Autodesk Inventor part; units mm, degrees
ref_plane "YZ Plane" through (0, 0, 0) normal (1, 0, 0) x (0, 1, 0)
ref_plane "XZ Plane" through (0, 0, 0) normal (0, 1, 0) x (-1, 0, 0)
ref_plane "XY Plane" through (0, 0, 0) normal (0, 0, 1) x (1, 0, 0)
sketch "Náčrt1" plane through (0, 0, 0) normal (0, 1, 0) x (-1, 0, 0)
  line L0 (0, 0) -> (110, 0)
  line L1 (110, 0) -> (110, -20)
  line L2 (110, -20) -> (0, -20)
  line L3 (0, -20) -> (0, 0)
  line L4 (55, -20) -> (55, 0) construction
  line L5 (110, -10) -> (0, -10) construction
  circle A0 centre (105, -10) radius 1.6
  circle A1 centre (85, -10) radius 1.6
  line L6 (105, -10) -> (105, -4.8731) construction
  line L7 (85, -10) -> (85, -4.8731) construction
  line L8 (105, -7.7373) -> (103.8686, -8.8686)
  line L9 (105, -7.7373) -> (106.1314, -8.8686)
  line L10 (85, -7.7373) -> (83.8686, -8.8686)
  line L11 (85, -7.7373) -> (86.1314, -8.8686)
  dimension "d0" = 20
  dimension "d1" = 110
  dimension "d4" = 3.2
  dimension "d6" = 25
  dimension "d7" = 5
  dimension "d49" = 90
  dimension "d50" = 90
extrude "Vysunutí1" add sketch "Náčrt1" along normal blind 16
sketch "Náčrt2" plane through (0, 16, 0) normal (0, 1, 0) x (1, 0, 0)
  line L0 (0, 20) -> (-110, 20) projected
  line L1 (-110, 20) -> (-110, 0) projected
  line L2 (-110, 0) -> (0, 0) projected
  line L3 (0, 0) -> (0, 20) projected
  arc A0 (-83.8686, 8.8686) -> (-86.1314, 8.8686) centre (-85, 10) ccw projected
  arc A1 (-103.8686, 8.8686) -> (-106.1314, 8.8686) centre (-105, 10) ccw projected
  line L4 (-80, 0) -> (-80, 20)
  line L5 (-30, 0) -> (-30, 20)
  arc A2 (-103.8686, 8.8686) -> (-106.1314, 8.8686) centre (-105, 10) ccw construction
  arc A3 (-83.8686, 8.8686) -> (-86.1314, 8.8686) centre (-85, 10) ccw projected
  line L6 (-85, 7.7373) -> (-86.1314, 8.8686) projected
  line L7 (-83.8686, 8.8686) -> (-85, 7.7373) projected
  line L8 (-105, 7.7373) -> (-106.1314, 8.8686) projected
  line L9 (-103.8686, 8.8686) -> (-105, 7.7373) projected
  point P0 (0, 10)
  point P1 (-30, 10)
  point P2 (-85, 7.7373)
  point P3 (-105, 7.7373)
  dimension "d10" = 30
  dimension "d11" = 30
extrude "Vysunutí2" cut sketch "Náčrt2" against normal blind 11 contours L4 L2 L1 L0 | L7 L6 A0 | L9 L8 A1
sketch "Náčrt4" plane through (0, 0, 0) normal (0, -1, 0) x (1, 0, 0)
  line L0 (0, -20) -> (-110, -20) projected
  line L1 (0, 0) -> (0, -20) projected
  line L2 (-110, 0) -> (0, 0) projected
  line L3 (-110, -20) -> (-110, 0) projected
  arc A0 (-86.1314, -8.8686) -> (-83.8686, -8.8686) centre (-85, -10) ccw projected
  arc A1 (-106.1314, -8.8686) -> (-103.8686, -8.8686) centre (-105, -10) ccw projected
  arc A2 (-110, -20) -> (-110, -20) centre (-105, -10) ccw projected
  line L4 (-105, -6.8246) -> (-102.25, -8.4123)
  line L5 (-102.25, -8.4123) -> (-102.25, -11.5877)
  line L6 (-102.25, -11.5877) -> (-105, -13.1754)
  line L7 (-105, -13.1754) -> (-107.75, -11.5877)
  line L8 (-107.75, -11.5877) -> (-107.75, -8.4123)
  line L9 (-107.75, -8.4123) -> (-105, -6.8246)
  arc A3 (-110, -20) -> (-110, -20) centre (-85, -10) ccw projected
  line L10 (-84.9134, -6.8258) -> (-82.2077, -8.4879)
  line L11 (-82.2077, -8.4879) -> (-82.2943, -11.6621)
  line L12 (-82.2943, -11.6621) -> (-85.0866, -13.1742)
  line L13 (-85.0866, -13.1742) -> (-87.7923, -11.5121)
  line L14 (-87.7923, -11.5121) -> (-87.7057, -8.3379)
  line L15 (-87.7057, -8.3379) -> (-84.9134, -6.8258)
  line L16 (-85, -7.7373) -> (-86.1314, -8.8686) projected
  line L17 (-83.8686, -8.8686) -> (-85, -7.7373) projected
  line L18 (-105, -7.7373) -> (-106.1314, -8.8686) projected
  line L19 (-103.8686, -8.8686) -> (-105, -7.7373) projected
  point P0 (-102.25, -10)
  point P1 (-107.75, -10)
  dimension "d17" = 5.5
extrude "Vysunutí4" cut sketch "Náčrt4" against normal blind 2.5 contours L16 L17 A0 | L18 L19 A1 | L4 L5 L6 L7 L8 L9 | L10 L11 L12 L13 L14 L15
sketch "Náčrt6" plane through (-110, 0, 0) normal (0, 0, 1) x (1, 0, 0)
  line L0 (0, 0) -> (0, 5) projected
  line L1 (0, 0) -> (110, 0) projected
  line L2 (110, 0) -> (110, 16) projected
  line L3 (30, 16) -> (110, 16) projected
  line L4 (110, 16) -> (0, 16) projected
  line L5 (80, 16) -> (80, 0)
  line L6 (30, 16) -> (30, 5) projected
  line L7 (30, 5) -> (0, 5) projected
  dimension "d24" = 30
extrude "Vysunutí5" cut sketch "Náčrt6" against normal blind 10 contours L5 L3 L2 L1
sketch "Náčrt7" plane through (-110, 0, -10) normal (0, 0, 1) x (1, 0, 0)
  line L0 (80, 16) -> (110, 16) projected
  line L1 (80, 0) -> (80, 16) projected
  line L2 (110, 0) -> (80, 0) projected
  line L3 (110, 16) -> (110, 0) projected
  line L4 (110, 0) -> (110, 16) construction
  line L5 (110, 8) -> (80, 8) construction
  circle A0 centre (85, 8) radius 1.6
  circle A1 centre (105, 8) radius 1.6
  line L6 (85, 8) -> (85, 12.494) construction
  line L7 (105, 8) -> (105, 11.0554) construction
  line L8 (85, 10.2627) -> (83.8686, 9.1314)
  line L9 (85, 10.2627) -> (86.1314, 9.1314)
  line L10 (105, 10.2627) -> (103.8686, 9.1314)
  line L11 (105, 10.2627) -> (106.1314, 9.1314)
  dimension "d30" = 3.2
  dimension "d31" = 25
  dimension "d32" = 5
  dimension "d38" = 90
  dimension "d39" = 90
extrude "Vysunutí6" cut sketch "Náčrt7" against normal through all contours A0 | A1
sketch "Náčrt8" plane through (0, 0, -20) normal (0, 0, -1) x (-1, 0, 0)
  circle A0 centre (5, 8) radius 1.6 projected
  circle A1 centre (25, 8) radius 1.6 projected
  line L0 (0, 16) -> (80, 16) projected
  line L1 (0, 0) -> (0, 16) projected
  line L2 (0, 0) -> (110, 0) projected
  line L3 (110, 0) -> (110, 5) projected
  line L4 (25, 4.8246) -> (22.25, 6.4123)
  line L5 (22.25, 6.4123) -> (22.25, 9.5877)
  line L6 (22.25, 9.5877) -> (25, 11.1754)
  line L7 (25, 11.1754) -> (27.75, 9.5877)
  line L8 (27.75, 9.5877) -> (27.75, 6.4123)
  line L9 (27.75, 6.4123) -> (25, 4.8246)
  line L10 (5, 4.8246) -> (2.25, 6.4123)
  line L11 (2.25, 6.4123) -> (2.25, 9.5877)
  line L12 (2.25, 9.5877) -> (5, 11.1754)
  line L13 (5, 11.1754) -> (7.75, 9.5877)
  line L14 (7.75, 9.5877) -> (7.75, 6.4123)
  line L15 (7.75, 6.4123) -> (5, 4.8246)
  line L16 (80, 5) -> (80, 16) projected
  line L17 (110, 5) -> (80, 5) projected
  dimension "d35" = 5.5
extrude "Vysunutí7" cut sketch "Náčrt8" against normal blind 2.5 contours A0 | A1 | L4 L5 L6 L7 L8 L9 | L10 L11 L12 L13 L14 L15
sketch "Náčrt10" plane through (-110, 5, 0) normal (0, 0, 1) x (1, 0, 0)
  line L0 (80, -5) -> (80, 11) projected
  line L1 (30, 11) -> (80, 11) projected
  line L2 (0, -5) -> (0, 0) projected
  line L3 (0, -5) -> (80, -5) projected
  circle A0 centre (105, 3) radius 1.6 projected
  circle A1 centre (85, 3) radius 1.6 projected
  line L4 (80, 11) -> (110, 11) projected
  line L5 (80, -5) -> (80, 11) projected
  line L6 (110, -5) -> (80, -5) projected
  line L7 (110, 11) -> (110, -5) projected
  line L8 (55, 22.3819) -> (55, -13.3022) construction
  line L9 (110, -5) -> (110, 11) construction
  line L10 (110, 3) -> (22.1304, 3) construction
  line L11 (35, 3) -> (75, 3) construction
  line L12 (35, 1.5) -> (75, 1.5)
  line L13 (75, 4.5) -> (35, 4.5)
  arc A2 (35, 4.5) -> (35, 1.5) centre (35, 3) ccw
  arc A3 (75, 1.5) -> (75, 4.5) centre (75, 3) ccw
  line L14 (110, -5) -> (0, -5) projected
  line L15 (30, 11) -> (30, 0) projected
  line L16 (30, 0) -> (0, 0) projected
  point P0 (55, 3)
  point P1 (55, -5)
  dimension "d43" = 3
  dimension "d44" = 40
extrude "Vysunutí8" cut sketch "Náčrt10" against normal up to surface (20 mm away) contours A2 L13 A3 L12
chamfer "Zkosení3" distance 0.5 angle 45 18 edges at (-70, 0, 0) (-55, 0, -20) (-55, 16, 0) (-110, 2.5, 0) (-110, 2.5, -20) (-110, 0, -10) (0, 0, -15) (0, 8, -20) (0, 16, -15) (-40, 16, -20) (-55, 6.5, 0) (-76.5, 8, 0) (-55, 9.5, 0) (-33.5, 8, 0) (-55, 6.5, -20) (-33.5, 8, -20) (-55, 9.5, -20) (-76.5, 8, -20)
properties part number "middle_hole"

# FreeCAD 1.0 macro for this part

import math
import FreeCAD as App
import Part
import Sketcher

V = App.Vector
Q = App.Units.Quantity


def edges_at(feature, points):
    """Names of the edges that pass closest to the given points."""
    edges = feature.Shape.Edges
    near = lambda p: min(range(len(edges)), key=lambda i: edges[i].distToShape(Part.Vertex(*p))[0])
    return sorted({f"Edge{near(p) + 1}" for p in points})

doc = App.newDocument("Part")
body = doc.addObject("PartDesign::Body", "Body")

sketch1 = body.newObject("Sketcher::SketchObject", "Sketch")
sketch1.AttachmentSupport = (doc.getObject("XZ_Plane"), [""])
sketch1.MapMode = "FlatFace"
sketch1.addGeometry([
    Part.LineSegment(V(-110, 0, 0), V(0, 0, 0)),
    Part.LineSegment(V(0, 0, 0), V(0, -20, 0)),
    Part.LineSegment(V(0, -20, 0), V(-110, -20, 0)),
    Part.LineSegment(V(-110, -20, 0), V(-110, 0, 0)),
    Part.ArcOfCircle(Part.Circle(V(-85, -10, 0), V(0, 0, 1), 1.6), math.radians(135), math.radians(405)),
    Part.LineSegment(V(-83.9, -8.9, 0), V(-85, -7.7, 0)),
    Part.LineSegment(V(-85, -7.7, 0), V(-86.1, -8.9, 0)),
    Part.ArcOfCircle(Part.Circle(V(-105, -10, 0), V(0, 0, 1), 1.6), math.radians(135), math.radians(405)),
    Part.LineSegment(V(-103.9, -8.9, 0), V(-105, -7.7, 0)),
    Part.LineSegment(V(-105, -7.7, 0), V(-106.1, -8.9, 0)),
], False)
sketch1.addConstraint([
    Sketcher.Constraint("Coincident", 0, 2, 1, 1),
    Sketcher.Constraint("Coincident", 1, 2, 2, 1),
    Sketcher.Constraint("Coincident", 2, 2, 3, 1),
    Sketcher.Constraint("Coincident", 3, 2, 0, 1),
    Sketcher.Constraint("Tangent", 4, 2, 5, 1),
    Sketcher.Constraint("Coincident", 5, 2, 6, 1),
    Sketcher.Constraint("Tangent", 6, 2, 4, 1),
    Sketcher.Constraint("Tangent", 7, 2, 8, 1),
    Sketcher.Constraint("Coincident", 8, 2, 9, 1),
    Sketcher.Constraint("Tangent", 9, 2, 7, 1),
    Sketcher.Constraint("Horizontal", 0),
    Sketcher.Constraint("Vertical", 1),
    Sketcher.Constraint("Horizontal", 2),
    Sketcher.Constraint("Vertical", 3),
    Sketcher.Constraint("Coincident", 0, 2, -1, 1),
    Sketcher.Constraint("Equal", 4, 7),
    Sketcher.Constraint("Perpendicular", 5, 6),
    Sketcher.Constraint("Perpendicular", 6, 8),
    Sketcher.Constraint("Perpendicular", 8, 9),
    Sketcher.Constraint("Horizontal", 4, 3, 7, 3),
    Sketcher.Constraint("Horizontal", 4, 2, 6, 2),
    Sketcher.Constraint("Radius", 4, 1.6),
    Sketcher.Constraint("DistanceX", 0, 1, 0, 2, 110.0),
    Sketcher.Constraint("DistanceY", 1, 2, 1, 1, 20.0),
    Sketcher.Constraint("DistanceX", 7, 3, 4, 3, 20.0),
    Sketcher.Constraint("DistanceX", 2, 2, 7, 3, 5.0),
    Sketcher.Constraint("DistanceY", 4, 3, -1, 1, 10.0),
])
pad1 = body.newObject("PartDesign::Pad", "Pad")
pad1.Profile = sketch1
pad1.Length = 16
pad1.Reversed = True

sketch2 = body.newObject("Sketcher::SketchObject", "Sketch001")
sketch2.AttachmentSupport = (doc.getObject("XZ_Plane"), [""])
sketch2.MapMode = "FlatFace"
sketch2.AttachmentOffset = App.Placement(V(0, 0, -16), App.Rotation())
sketch2.addGeometry([
    Part.LineSegment(V(-80, 0, 0), V(-80, -20, 0)),
    Part.LineSegment(V(-80, -20, 0), V(-110, -20, 0)),
    Part.LineSegment(V(-110, -20, 0), V(-110, 0, 0)),
    Part.LineSegment(V(-110, 0, 0), V(-80, 0, 0)),
], False)
sketch2.addConstraint([
    Sketcher.Constraint("Coincident", 0, 2, 1, 1),
    Sketcher.Constraint("Coincident", 1, 2, 2, 1),
    Sketcher.Constraint("Coincident", 2, 2, 3, 1),
    Sketcher.Constraint("Coincident", 3, 2, 0, 1),
    Sketcher.Constraint("Vertical", 0),
    Sketcher.Constraint("Horizontal", 1),
    Sketcher.Constraint("Vertical", 2),
    Sketcher.Constraint("Horizontal", 3),
    Sketcher.Constraint("PointOnObject", 2, 2, -1),
    Sketcher.Constraint("DistanceX", 1, 2, 1, 1, 30.0),
    Sketcher.Constraint("DistanceY", 0, 2, 0, 1, 20.0),
    Sketcher.Constraint("DistanceX", 0, 2, -1, 1, 80.0),
])
pocket1 = body.newObject("PartDesign::Pocket", "Pocket")
pocket1.Profile = sketch2
pocket1.Length = 11
pocket1.Reversed = True

sketch3 = body.newObject("Sketcher::SketchObject", "Sketch002")
sketch3.AttachmentSupport = (doc.getObject("XZ_Plane"), [""])
sketch3.MapMode = "FlatFace"
sketch3.addGeometry([
    Part.LineSegment(V(-82.2077, -8.4879, 0), V(-84.9134, -6.8258, 0)),
    Part.LineSegment(V(-84.9134, -6.8258, 0), V(-87.7057, -8.3379, 0)),
    Part.LineSegment(V(-87.7057, -8.3379, 0), V(-87.7923, -11.5121, 0)),
    Part.LineSegment(V(-87.7923, -11.5121, 0), V(-85.0866, -13.1742, 0)),
    Part.LineSegment(V(-85.0866, -13.1742, 0), V(-82.2943, -11.6621, 0)),
    Part.LineSegment(V(-82.2943, -11.6621, 0), V(-82.2077, -8.4879, 0)),
    Part.LineSegment(V(-102.25, -8.4123, 0), V(-105, -6.8246, 0)),
    Part.LineSegment(V(-105, -6.8246, 0), V(-107.75, -8.4123, 0)),
    Part.LineSegment(V(-107.75, -8.4123, 0), V(-107.75, -11.5877, 0)),
    Part.LineSegment(V(-107.75, -11.5877, 0), V(-105, -13.1754, 0)),
    Part.LineSegment(V(-105, -13.1754, 0), V(-102.25, -11.5877, 0)),
    Part.LineSegment(V(-102.25, -11.5877, 0), V(-102.25, -8.4123, 0)),
], False)
sketch3.addConstraint([
    Sketcher.Constraint("Coincident", 0, 2, 1, 1),
    Sketcher.Constraint("Coincident", 1, 2, 2, 1),
    Sketcher.Constraint("Coincident", 2, 2, 3, 1),
    Sketcher.Constraint("Coincident", 3, 2, 4, 1),
    Sketcher.Constraint("Coincident", 4, 2, 5, 1),
    Sketcher.Constraint("Coincident", 5, 2, 0, 1),
    Sketcher.Constraint("Coincident", 6, 2, 7, 1),
    Sketcher.Constraint("Coincident", 7, 2, 8, 1),
    Sketcher.Constraint("Coincident", 8, 2, 9, 1),
    Sketcher.Constraint("Coincident", 9, 2, 10, 1),
    Sketcher.Constraint("Coincident", 10, 2, 11, 1),
    Sketcher.Constraint("Coincident", 11, 2, 6, 1),
    Sketcher.Constraint("Vertical", 8),
    Sketcher.Constraint("Vertical", 11),
    Sketcher.Constraint("DistanceX", 8, 2, 10, 2, 5.5),
    Sketcher.Constraint("DistanceX", 6, 2, -1, 1, 105.0),
    Sketcher.Constraint("DistanceX", 9, 2, -1, 1, 105.0),
    Sketcher.Constraint("DistanceX", 7, 2, -1, 1, 107.75),
    Sketcher.Constraint("DistanceY", 4, 2, 2, 2, 0.15),
    Sketcher.Constraint("DistanceY", 5, 2, 1, 2, 0.15),
    Sketcher.Constraint("DistanceY", 8, 2, 8, 1, 3.1754),
    Sketcher.Constraint("DistanceY", 11, 1, 11, 2, 3.1754),
    Sketcher.Constraint("DistanceY", 1, 2, -1, 1, 8.338),
    Sketcher.Constraint("DistanceY", 2, 2, -1, 1, 11.512),
    Sketcher.Constraint("DistanceY", 1, 2, 0, 2, 1.512),
    Sketcher.Constraint("DistanceX", 2, 2, 0, 2, 2.879),
    Sketcher.Constraint("DistanceY", 3, 2, 2, 2, 1.662),
    Sketcher.Constraint("DistanceX", 1, 2, 3, 2, 2.619),
    Sketcher.Constraint("DistanceX", 0, 2, 4, 2, 2.619),
    Sketcher.Constraint("DistanceX", 3, 2, 5, 2, 2.879),
    Sketcher.Constraint("DistanceY", 3, 2, 7, 2, 4.762),
    Sketcher.Constraint("DistanceY", 8, 2, 6, 2, 4.763),
    Sketcher.Constraint("DistanceY", 9, 2, 7, 2, 4.763),
    Sketcher.Constraint("DistanceY", 10, 2, 6, 2, 4.763),
    Sketcher.Constraint("Distance", 0, 3.1754),
    Sketcher.Constraint("DistanceX", 0, 2, -1, 1, 84.9134),
])
pocket2 = body.newObject("PartDesign::Pocket", "Pocket001")
pocket2.Profile = sketch3
pocket2.Length = 2.5

sketch4 = body.newObject("Sketcher::SketchObject", "Sketch003")
sketch4.AttachmentSupport = (doc.getObject("XY_Plane"), [""])
sketch4.MapMode = "FlatFace"
sketch4.addGeometry([
    Part.LineSegment(V(-30, 16, 0), V(-30, 0, 0)),
    Part.LineSegment(V(-30, 0, 0), V(0, 0, 0)),
    Part.LineSegment(V(0, 0, 0), V(0, 16, 0)),
    Part.LineSegment(V(0, 16, 0), V(-30, 16, 0)),
], False)
sketch4.addConstraint([
    Sketcher.Constraint("Coincident", 0, 2, 1, 1),
    Sketcher.Constraint("Coincident", 1, 2, 2, 1),
    Sketcher.Constraint("Coincident", 2, 2, 3, 1),
    Sketcher.Constraint("Coincident", 3, 2, 0, 1),
    Sketcher.Constraint("Vertical", 0),
    Sketcher.Constraint("Horizontal", 1),
    Sketcher.Constraint("Vertical", 2),
    Sketcher.Constraint("Horizontal", 3),
    Sketcher.Constraint("Coincident", 1, 2, -1, 1),
    Sketcher.Constraint("DistanceX", 1, 1, 1, 2, 30.0),
    Sketcher.Constraint("DistanceY", 0, 2, 0, 1, 16.0),
])
pocket3 = body.newObject("PartDesign::Pocket", "Pocket002")
pocket3.Profile = sketch4
pocket3.Length = 10

sketch5 = body.newObject("Sketcher::SketchObject", "Sketch004")
sketch5.AttachmentSupport = (doc.getObject("XY_Plane"), [""])
sketch5.MapMode = "FlatFace"
sketch5.AttachmentOffset = App.Placement(V(0, 0, -10), App.Rotation())
sketch5.addGeometry([
    Part.Circle(V(-25, 8, 0), V(0, 0, 1), 1.6),
    Part.Circle(V(-5, 8, 0), V(0, 0, 1), 1.6),
], False)
sketch5.addConstraint([
    Sketcher.Constraint("Equal", 0, 1),
    Sketcher.Constraint("Horizontal", 0, 3, 1, 3),
    Sketcher.Constraint("Diameter", 0, 3.2),
    Sketcher.Constraint("DistanceX", 0, 3, -1, 1, 25.0),
    Sketcher.Constraint("DistanceX", 1, 3, -1, 1, 5.0),
    Sketcher.Constraint("DistanceY", -1, 1, 0, 3, 8.0),
])
pocket4 = body.newObject("PartDesign::Pocket", "Pocket003")
pocket4.Profile = sketch5
pocket4.Type = "ThroughAll"

sketch6 = body.newObject("Sketcher::SketchObject", "Sketch005")
sketch6.AttachmentSupport = (doc.getObject("XY_Plane"), [""])
sketch6.MapMode = "FlatFace"
sketch6.AttachmentOffset = App.Placement(V(0, 0, -20), App.Rotation())
sketch6.addGeometry([
    Part.LineSegment(V(-2.2, 6.4, 0), V(-5, 4.8, 0)),
    Part.LineSegment(V(-5, 4.8, 0), V(-7.8, 6.4, 0)),
    Part.LineSegment(V(-7.8, 6.4, 0), V(-7.8, 9.6, 0)),
    Part.LineSegment(V(-7.8, 9.6, 0), V(-5, 11.2, 0)),
    Part.LineSegment(V(-5, 11.2, 0), V(-2.2, 9.6, 0)),
    Part.LineSegment(V(-2.2, 9.6, 0), V(-2.2, 6.4, 0)),
    Part.LineSegment(V(-22.2, 6.4, 0), V(-25, 4.8, 0)),
    Part.LineSegment(V(-25, 4.8, 0), V(-27.8, 6.4, 0)),
    Part.LineSegment(V(-27.8, 6.4, 0), V(-27.8, 9.6, 0)),
    Part.LineSegment(V(-27.8, 9.6, 0), V(-25, 11.2, 0)),
    Part.LineSegment(V(-25, 11.2, 0), V(-22.2, 9.6, 0)),
    Part.LineSegment(V(-22.2, 9.6, 0), V(-22.2, 6.4, 0)),
], False)
sketch6.addConstraint([
    Sketcher.Constraint("Coincident", 0, 2, 1, 1),
    Sketcher.Constraint("Coincident", 1, 2, 2, 1),
    Sketcher.Constraint("Coincident", 2, 2, 3, 1),
    Sketcher.Constraint("Coincident", 3, 2, 4, 1),
    Sketcher.Constraint("Coincident", 4, 2, 5, 1),
    Sketcher.Constraint("Coincident", 5, 2, 0, 1),
    Sketcher.Constraint("Coincident", 6, 2, 7, 1),
    Sketcher.Constraint("Coincident", 7, 2, 8, 1),
    Sketcher.Constraint("Coincident", 8, 2, 9, 1),
    Sketcher.Constraint("Coincident", 9, 2, 10, 1),
    Sketcher.Constraint("Coincident", 10, 2, 11, 1),
    Sketcher.Constraint("Coincident", 11, 2, 6, 1),
    Sketcher.Constraint("Vertical", 2),
    Sketcher.Constraint("Vertical", 5),
    Sketcher.Constraint("Vertical", 8),
    Sketcher.Constraint("Vertical", 11),
    Sketcher.Constraint("Parallel", 0, 3),
    Sketcher.Constraint("Parallel", 1, 4),
    Sketcher.Constraint("Parallel", 3, 6),
    Sketcher.Constraint("Parallel", 4, 7),
    Sketcher.Constraint("Parallel", 6, 9),
    Sketcher.Constraint("Parallel", 7, 10),
    Sketcher.Constraint("Horizontal", 2, 2, 4, 2),
    Sketcher.Constraint("Horizontal", 1, 2, 5, 2),
    Sketcher.Constraint("Horizontal", 0, 2, 6, 2),
    Sketcher.Constraint("Horizontal", 5, 2, 7, 2),
    Sketcher.Constraint("Horizontal", 4, 2, 8, 2),
    Sketcher.Constraint("Horizontal", 3, 2, 9, 2),
    Sketcher.Constraint("Horizontal", 8, 2, 10, 2),
    Sketcher.Constraint("Vertical", 0, 2, 3, 2),
    Sketcher.Constraint("DistanceX", 2, 2, 4, 2, 5.5),
    Sketcher.Constraint("Angle", 0, Q("-150.0002 deg")),
    Sketcher.Constraint("DistanceX", 0, 2, -1, 1, 5.0),
    Sketcher.Constraint("DistanceX", 6, 2, -1, 1, 25.0),
    Sketcher.Constraint("DistanceY", 2, 1, 2, 2, 3.1754),
    Sketcher.Constraint("DistanceY", -1, 1, 0, 2, 4.8246),
])
pocket5 = body.newObject("PartDesign::Pocket", "Pocket004")
pocket5.Profile = sketch6
pocket5.Length = 2.5
pocket5.Reversed = True

sketch7 = body.newObject("Sketcher::SketchObject", "Sketch006")
sketch7.AttachmentSupport = (doc.getObject("XY_Plane"), [""])
sketch7.MapMode = "FlatFace"
sketch7.addGeometry([
    Part.ArcOfCircle(Part.Circle(V(-75, 8, 0), V(0, 0, 1), 1.5), math.radians(90), math.radians(270)),
    Part.LineSegment(V(-75, 6.5, 0), V(-35, 6.5, 0)),
    Part.ArcOfCircle(Part.Circle(V(-35, 8, 0), V(0, 0, 1), 1.5), math.radians(-90), math.radians(90)),
    Part.LineSegment(V(-35, 9.5, 0), V(-75, 9.5, 0)),
], False)
sketch7.addConstraint([
    Sketcher.Constraint("Tangent", 0, 2, 1, 1),
    Sketcher.Constraint("Tangent", 1, 2, 2, 1),
    Sketcher.Constraint("Tangent", 2, 2, 3, 1),
    Sketcher.Constraint("Tangent", 3, 2, 0, 1),
    Sketcher.Constraint("Horizontal", 1),
    Sketcher.Constraint("Horizontal", 3),
    Sketcher.Constraint("Radius", 0, 1.5),
    Sketcher.Constraint("DistanceX", 1, 1, 1, 2, 40.0),
    Sketcher.Constraint("DistanceX", 0, 3, -1, 1, 75.0),
    Sketcher.Constraint("DistanceY", -1, 1, 0, 3, 8.0),
])
pocket6 = body.newObject("PartDesign::Pocket", "Pocket005")
pocket6.Profile = sketch7
pocket6.Length = 20
doc.recompute()

chamfer = body.newObject("PartDesign::Chamfer", "Chamfer")
chamfer.Base = (pocket6, edges_at(pocket6, [
    (-70, 0, 0),
    (-55, 0, -20),
    (-55, 16, 0),
    (-110, 2.5, 0),
    (-110, 2.5, -20),
    (-110, 0, -10),
    (0, 0, -15),
    (0, 8, -20),
    (0, 16, -15),
    (-40, 16, -20),
    (-55, 6.5, 0),
    (-76.5, 8, 0),
    (-55, 9.5, 0),
    (-33.5, 8, 0),
    (-55, 6.5, -20),
    (-33.5, 8, -20),
    (-55, 9.5, -20),
    (-76.5, 8, -20),
]))
chamfer.Size = 0.5

doc.recompute()
